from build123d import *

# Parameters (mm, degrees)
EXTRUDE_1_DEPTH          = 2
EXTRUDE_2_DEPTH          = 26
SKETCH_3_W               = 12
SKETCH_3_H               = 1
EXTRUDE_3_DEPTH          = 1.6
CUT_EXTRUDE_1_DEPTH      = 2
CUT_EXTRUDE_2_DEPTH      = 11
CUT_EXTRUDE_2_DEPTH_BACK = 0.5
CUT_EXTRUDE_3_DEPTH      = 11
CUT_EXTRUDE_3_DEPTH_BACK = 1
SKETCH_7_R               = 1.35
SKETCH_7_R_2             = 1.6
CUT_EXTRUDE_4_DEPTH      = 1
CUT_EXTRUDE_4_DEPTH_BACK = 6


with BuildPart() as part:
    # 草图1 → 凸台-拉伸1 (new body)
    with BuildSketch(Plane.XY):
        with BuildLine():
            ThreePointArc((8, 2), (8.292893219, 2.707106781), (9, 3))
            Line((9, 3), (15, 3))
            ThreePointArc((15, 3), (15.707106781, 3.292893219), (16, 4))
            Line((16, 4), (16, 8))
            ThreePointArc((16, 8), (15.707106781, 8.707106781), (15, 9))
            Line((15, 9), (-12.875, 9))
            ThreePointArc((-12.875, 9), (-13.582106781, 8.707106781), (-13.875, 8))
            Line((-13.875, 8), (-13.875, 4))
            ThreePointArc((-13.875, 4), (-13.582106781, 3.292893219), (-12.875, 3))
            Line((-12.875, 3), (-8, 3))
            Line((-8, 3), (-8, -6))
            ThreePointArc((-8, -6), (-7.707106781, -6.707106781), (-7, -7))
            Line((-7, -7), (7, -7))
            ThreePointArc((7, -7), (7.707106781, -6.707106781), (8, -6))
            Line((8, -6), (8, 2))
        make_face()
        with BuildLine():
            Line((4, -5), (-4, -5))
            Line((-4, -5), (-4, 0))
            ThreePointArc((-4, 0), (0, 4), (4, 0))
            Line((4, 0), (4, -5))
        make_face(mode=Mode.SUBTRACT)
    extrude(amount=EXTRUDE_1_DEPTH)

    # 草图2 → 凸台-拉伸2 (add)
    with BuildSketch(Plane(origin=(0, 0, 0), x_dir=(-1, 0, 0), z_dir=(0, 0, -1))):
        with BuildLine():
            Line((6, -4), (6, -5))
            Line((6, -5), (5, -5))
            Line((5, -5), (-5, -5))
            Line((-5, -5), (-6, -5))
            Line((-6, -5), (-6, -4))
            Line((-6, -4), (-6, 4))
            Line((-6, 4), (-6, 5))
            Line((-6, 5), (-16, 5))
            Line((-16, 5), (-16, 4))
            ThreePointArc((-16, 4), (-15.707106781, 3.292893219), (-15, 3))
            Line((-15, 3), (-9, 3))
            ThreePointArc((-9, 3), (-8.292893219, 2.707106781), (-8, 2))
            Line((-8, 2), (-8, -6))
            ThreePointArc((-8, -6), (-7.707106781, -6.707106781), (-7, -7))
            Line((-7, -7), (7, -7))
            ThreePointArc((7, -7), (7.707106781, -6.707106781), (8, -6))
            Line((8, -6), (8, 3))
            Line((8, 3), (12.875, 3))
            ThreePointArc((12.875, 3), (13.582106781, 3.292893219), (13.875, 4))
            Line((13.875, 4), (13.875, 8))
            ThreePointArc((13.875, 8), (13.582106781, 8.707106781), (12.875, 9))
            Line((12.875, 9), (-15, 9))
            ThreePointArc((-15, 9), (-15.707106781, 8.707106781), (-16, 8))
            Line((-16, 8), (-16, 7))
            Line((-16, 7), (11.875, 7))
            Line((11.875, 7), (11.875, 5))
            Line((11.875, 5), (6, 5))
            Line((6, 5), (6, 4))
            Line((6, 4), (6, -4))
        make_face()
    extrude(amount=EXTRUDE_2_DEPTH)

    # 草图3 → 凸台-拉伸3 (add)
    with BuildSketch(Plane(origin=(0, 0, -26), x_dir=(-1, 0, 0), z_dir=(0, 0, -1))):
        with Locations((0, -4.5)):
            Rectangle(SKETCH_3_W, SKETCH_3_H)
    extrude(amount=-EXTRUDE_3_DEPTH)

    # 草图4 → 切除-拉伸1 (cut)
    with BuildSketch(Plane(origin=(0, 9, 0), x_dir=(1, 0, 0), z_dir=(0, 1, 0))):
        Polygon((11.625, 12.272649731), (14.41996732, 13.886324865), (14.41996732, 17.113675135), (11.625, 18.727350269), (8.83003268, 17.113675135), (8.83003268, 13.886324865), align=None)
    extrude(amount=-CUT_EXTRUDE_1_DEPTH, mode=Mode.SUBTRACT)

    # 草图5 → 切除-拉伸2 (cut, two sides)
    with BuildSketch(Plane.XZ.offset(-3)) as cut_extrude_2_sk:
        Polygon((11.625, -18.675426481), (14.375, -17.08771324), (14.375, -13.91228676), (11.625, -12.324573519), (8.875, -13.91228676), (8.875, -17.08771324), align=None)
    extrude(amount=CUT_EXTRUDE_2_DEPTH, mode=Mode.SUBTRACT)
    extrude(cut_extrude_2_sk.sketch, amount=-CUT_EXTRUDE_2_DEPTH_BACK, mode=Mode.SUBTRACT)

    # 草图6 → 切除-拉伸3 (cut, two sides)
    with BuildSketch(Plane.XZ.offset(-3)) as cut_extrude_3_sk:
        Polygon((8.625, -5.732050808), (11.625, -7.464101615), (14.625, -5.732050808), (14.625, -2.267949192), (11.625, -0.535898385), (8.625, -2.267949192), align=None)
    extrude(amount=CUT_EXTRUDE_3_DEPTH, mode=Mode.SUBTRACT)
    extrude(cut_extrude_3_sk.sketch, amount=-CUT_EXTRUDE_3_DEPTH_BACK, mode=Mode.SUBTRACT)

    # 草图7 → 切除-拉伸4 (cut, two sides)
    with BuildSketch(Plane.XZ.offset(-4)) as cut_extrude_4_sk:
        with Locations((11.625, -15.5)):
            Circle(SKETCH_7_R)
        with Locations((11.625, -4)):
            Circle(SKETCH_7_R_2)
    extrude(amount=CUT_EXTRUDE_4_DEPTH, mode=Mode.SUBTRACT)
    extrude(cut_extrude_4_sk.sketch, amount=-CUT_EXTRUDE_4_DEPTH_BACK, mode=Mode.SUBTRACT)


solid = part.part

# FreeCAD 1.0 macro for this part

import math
import FreeCAD as App
import Part
import Sketcher
Q = App.Units.Quantity


def add_polygon(sketch, points):
    """Adds a closed chain of lines whose ends are joined by coincident constraints."""
    first, n = sketch.GeometryCount, len(points)
    for a, b in zip(points, points[1:] + points[:1]):
        sketch.addGeometry(Part.LineSegment(App.Vector(*a, 0), App.Vector(*b, 0)), False)
    for i in range(n):
        sketch.addConstraint(Sketcher.Constraint("Coincident", first + i, 2, first + (i + 1) % n, 1))

doc = App.newDocument("Part")
body = doc.addObject("PartDesign::Body", "Body")

sketch1 = doc.addObject("Sketcher::SketchObject", "Sketch")
body.addObject(sketch1)
sketch1.AttachmentSupport = (doc.XY_Plane, [""])
sketch1.MapMode = "FlatFace"
sketch1.addGeometry([
    Part.ArcOfCircle(Part.Circle(App.Vector(9, 2, 0), App.Vector(0, 0, 1), 1), math.radians(90), math.radians(180)),
    Part.LineSegment(App.Vector(9, 3, 0), App.Vector(15, 3, 0)),
    Part.ArcOfCircle(Part.Circle(App.Vector(15, 4, 0), App.Vector(0, 0, 1), 1), math.radians(-90), math.radians(0)),
    Part.LineSegment(App.Vector(16, 4, 0), App.Vector(16, 8, 0)),
    Part.ArcOfCircle(Part.Circle(App.Vector(15, 8, 0), App.Vector(0, 0, 1), 1), math.radians(0), math.radians(90)),
    Part.LineSegment(App.Vector(15, 9, 0), App.Vector(-12.875, 9, 0)),
    Part.ArcOfCircle(Part.Circle(App.Vector(-12.875, 8, 0), App.Vector(0, 0, 1), 1), math.radians(90), math.radians(180)),
    Part.LineSegment(App.Vector(-13.875, 8, 0), App.Vector(-13.875, 4, 0)),
    Part.ArcOfCircle(Part.Circle(App.Vector(-12.875, 4, 0), App.Vector(0, 0, 1), 1), math.radians(-180), math.radians(-90)),
    Part.LineSegment(App.Vector(-12.875, 3, 0), App.Vector(-8, 3, 0)),
    Part.LineSegment(App.Vector(-8, 3, 0), App.Vector(-8, -6, 0)),
    Part.ArcOfCircle(Part.Circle(App.Vector(-7, -6, 0), App.Vector(0, 0, 1), 1), math.radians(-180), math.radians(-90)),
    Part.LineSegment(App.Vector(-7, -7, 0), App.Vector(7, -7, 0)),
    Part.ArcOfCircle(Part.Circle(App.Vector(7, -6, 0), App.Vector(0, 0, 1), 1), math.radians(-90), math.radians(0)),
    Part.LineSegment(App.Vector(8, -6, 0), App.Vector(8, 2, 0)),
    Part.LineSegment(App.Vector(4, 0, 0), App.Vector(4, -5, 0)),
    Part.LineSegment(App.Vector(4, -5, 0), App.Vector(-4, -5, 0)),
    Part.LineSegment(App.Vector(-4, -5, 0), App.Vector(-4, 0, 0)),
    Part.ArcOfCircle(Part.Circle(App.Vector(0, 0, 0), App.Vector(0, 0, 1), 4), math.radians(0), math.radians(180)),
], False)
sketch1.addConstraint([
    Sketcher.Constraint("Tangent", 0, 1, 1, 1),
    Sketcher.Constraint("Tangent", 1, 2, 2, 1),
    Sketcher.Constraint("Tangent", 2, 2, 3, 1),
    Sketcher.Constraint("Tangent", 3, 2, 4, 1),
    Sketcher.Constraint("Tangent", 4, 2, 5, 1),
    Sketcher.Constraint("Tangent", 5, 2, 6, 1),
    Sketcher.Constraint("Tangent", 6, 2, 7, 1),
    Sketcher.Constraint("Tangent", 7, 2, 8, 1),
    Sketcher.Constraint("Tangent", 8, 2, 9, 1),
    Sketcher.Constraint("Coincident", 9, 2, 10, 1),
    Sketcher.Constraint("Tangent", 10, 2, 11, 1),
    Sketcher.Constraint("Tangent", 11, 2, 12, 1),
    Sketcher.Constraint("Tangent", 12, 2, 13, 1),
    Sketcher.Constraint("Tangent", 13, 2, 14, 1),
    Sketcher.Constraint("Tangent", 14, 2, 0, 2),
    Sketcher.Constraint("Coincident", 15, 2, 16, 1),
    Sketcher.Constraint("Coincident", 16, 2, 17, 1),
    Sketcher.Constraint("Tangent", 17, 2, 18, 2),
    Sketcher.Constraint("Tangent", 18, 1, 15, 1),
    Sketcher.Constraint("Horizontal", 1),
    Sketcher.Constraint("Vertical", 3),
    Sketcher.Constraint("Horizontal", 5),
    Sketcher.Constraint("Vertical", 7),
    Sketcher.Constraint("Horizontal", 9),
    Sketcher.Constraint("Vertical", 10),
    Sketcher.Constraint("Horizontal", 12),
    Sketcher.Constraint("Vertical", 14),
    Sketcher.Constraint("Vertical", 15),
    Sketcher.Constraint("Horizontal", 16),
    Sketcher.Constraint("Vertical", 17),
    Sketcher.Constraint("Coincident", 18, 3, -1, 1),
    Sketcher.Constraint("Equal", 0, 2),
    Sketcher.Constraint("Equal", 2, 4),
    Sketcher.Constraint("Equal", 4, 6),
    Sketcher.Constraint("Equal", 6, 8),
    Sketcher.Constraint("Equal", 8, 11),
    Sketcher.Constraint("Equal", 11, 13),
    Sketcher.Constraint("Horizontal", 2, 3, 8, 3),
    Sketcher.Constraint("Equal", 16, 14),
    Sketcher.Constraint("Radius", 0, Q("1 mm")),
    Sketcher.Constraint("Radius", 18, Q("4 mm")),
    Sketcher.Constraint("DistanceX", 1, 1, 1, 2, Q("6 mm")),
    Sketcher.Constraint("DistanceX", 12, 1, 12, 2, Q("14 mm")),
    Sketcher.Constraint("DistanceY", 3, 1, 3, 2, Q("4 mm")),
    Sketcher.Constraint("DistanceY", 15, 2, 15, 1, Q("5 mm")),
    Sketcher.Constraint("DistanceX", -1, 1, 0, 3, Q("9 mm")),
    Sketcher.Constraint("DistanceY", -1, 1, 0, 3, Q("2 mm")),
    Sketcher.Constraint("DistanceX", 5, 2, 5, 1, Q("27.875 mm")),
])
pad1 = doc.addObject("PartDesign::Pad", "Pad")
body.addObject(pad1)
pad1.Profile = sketch1
pad1.Length = 2

sketch2 = doc.addObject("Sketcher::SketchObject", "Sketch001")
body.addObject(sketch2)
sketch2.AttachmentSupport = (doc.XY_Plane, [""])
sketch2.MapMode = "FlatFace"
sketch2.addGeometry([
    Part.LineSegment(App.Vector(-6, -5, 0), App.Vector(6, -5, 0)),
    Part.LineSegment(App.Vector(6, -5, 0), App.Vector(6, 5, 0)),
    Part.LineSegment(App.Vector(6, 5, 0), App.Vector(16, 5, 0)),
    Part.LineSegment(App.Vector(16, 5, 0), App.Vector(16, 4, 0)),
    Part.ArcOfCircle(Part.Circle(App.Vector(15, 4, 0), App.Vector(0, 0, 1), 1), math.radians(-90), math.radians(0)),
    Part.LineSegment(App.Vector(15, 3, 0), App.Vector(9, 3, 0)),
    Part.ArcOfCircle(Part.Circle(App.Vector(9, 2, 0), App.Vector(0, 0, 1), 1), math.radians(90), math.radians(180)),
    Part.LineSegment(App.Vector(8, 2, 0), App.Vector(8, -6, 0)),
    Part.ArcOfCircle(Part.Circle(App.Vector(7, -6, 0), App.Vector(0, 0, 1), 1), math.radians(-90), math.radians(0)),
    Part.LineSegment(App.Vector(7, -7, 0), App.Vector(-7, -7, 0)),
    Part.ArcOfCircle(Part.Circle(App.Vector(-7, -6, 0), App.Vector(0, 0, 1), 1), math.radians(-180), math.radians(-90)),
    Part.LineSegment(App.Vector(-8, -6, 0), App.Vector(-8, 3, 0)),
    Part.LineSegment(App.Vector(-8, 3, 0), App.Vector(-12.875, 3, 0)),
    Part.ArcOfCircle(Part.Circle(App.Vector(-12.875, 4, 0), App.Vector(0, 0, 1), 1), math.radians(-180), math.radians(-90)),
    Part.LineSegment(App.Vector(-13.875, 4, 0), App.Vector(-13.875, 8, 0)),
    Part.ArcOfCircle(Part.Circle(App.Vector(-12.875, 8, 0), App.Vector(0, 0, 1), 1), math.radians(90), math.radians(180)),
    Part.LineSegment(App.Vector(-12.875, 9, 0), App.Vector(15, 9, 0)),
    Part.ArcOfCircle(Part.Circle(App.Vector(15, 8, 0), App.Vector(0, 0, 1), 1), math.radians(0), math.radians(90)),
    Part.LineSegment(App.Vector(16, 8, 0), App.Vector(16, 7, 0)),
    Part.LineSegment(App.Vector(16, 7, 0), App.Vector(-11.875, 7, 0)),
    Part.LineSegment(App.Vector(-11.875, 7, 0), App.Vector(-11.875, 5, 0)),
    Part.LineSegment(App.Vector(-11.875, 5, 0), App.Vector(-6, 5, 0)),
    Part.LineSegment(App.Vector(-6, 5, 0), App.Vector(-6, -5, 0)),
], False)
sketch2.addConstraint([
    Sketcher.Constraint("Coincident", 0, 2, 1, 1),
    Sketcher.Constraint("Coincident", 1, 2, 2, 1),
    Sketcher.Constraint("Coincident", 2, 2, 3, 1),
    Sketcher.Constraint("Tangent", 3, 2, 4, 2),
    Sketcher.Constraint("Tangent", 4, 1, 5, 1),
    Sketcher.Constraint("Tangent", 5, 2, 6, 1),
    Sketcher.Constraint("Tangent", 6, 2, 7, 1),
    Sketcher.Constraint("Tangent", 7, 2, 8, 2),
    Sketcher.Constraint("Tangent", 8, 1, 9, 1),
    Sketcher.Constraint("Tangent", 9, 2, 10, 2),
    Sketcher.Constraint("Tangent", 10, 1, 11, 1),
    Sketcher.Constraint("Coincident", 11, 2, 12, 1),
    Sketcher.Constraint("Tangent", 12, 2, 13, 2),
    Sketcher.Constraint("Tangent", 13, 1, 14, 1),
    Sketcher.Constraint("Tangent", 14, 2, 15, 2),
    Sketcher.Constraint("Tangent", 15, 1, 16, 1),
    Sketcher.Constraint("Tangent", 16, 2, 17, 2),
    Sketcher.Constraint("Tangent", 17, 1, 18, 1),
    Sketcher.Constraint("Coincident", 18, 2, 19, 1),
    Sketcher.Constraint("Coincident", 19, 2, 20, 1),
    Sketcher.Constraint("Coincident", 20, 2, 21, 1),
    Sketcher.Constraint("Coincident", 21, 2, 22, 1),
    Sketcher.Constraint("Coincident", 22, 2, 0, 1),
    Sketcher.Constraint("Horizontal", 0),
    Sketcher.Constraint("Vertical", 1),
    Sketcher.Constraint("Horizontal", 2),
    Sketcher.Constraint("Vertical", 3),
    Sketcher.Constraint("Horizontal", 5),
    Sketcher.Constraint("Vertical", 7),
    Sketcher.Constraint("Horizontal", 9),
    Sketcher.Constraint("Vertical", 11),
    Sketcher.Constraint("Horizontal", 12),
    Sketcher.Constraint("Vertical", 14),
    Sketcher.Constraint("Horizontal", 16),
    Sketcher.Constraint("Vertical", 18),
    Sketcher.Constraint("Horizontal", 19),
    Sketcher.Constraint("Vertical", 20),
    Sketcher.Constraint("Horizontal", 21),
    Sketcher.Constraint("Vertical", 22),
    Sketcher.Constraint("Equal", 4, 6),
    Sketcher.Constraint("Equal", 6, 8),
    Sketcher.Constraint("Equal", 8, 10),
    Sketcher.Constraint("Equal", 10, 13),
    Sketcher.Constraint("Equal", 13, 15),
    Sketcher.Constraint("Equal", 15, 17),
    Sketcher.Constraint("Symmetric", 0, 2, 21, 2, -1, 1),
    Sketcher.Constraint("Horizontal", 4, 3, 13, 3),
    Sketcher.Constraint("Horizontal", 2, 2, 20, 2),
    Sketcher.Constraint("Vertical", 4, 3, 17, 3),
    Sketcher.Constraint("Equal", 16, 19),
    Sketcher.Constraint("Equal", 2, 1),
    Sketcher.Constraint("Equal", 3, 18),
    Sketcher.Constraint("Radius", 4, Q("1 mm")),
    Sketcher.Constraint("DistanceX", 0, 1, 0, 2, Q("12 mm")),
    Sketcher.Constraint("DistanceX", 2, 1, 2, 2, Q("10 mm")),
    Sketcher.Constraint("DistanceX", 5, 2, 5, 1, Q("6 mm")),
    Sketcher.Constraint("DistanceX", 9, 2, 9, 1, Q("14 mm")),
    Sketcher.Constraint("DistanceY", 3, 2, 3, 1, Q("1 mm")),
    Sketcher.Constraint("DistanceY", 7, 2, 7, 1, Q("8 mm")),
    Sketcher.Constraint("DistanceY", 14, 1, 14, 2, Q("4 mm")),
    Sketcher.Constraint("DistanceX", 12, 2, 12, 1, Q("4.875 mm")),
])
pad2 = doc.addObject("PartDesign::Pad", "Pad001")
body.addObject(pad2)
pad2.Profile = sketch2
pad2.Length = 26
pad2.Reversed = True

sketch3 = doc.addObject("Sketcher::SketchObject", "Sketch002")
body.addObject(sketch3)
sketch3.AttachmentSupport = (doc.XY_Plane, [""])
sketch3.MapMode = "FlatFace"
sketch3.AttachmentOffset = App.Placement(App.Vector(0, 0, -26), App.Rotation())
add_polygon(sketch3, [(6, -4), (6, -5), (-6, -5), (-6, -4)])
sketch3.addConstraint([
    Sketcher.Constraint("Vertical", 0),
    Sketcher.Constraint("Horizontal", 1),
    Sketcher.Constraint("Vertical", 2),
    Sketcher.Constraint("Horizontal", 3),
    Sketcher.Constraint("DistanceX", 1, 2, 1, 1, Q("12 mm")),
    Sketcher.Constraint("DistanceY", 0, 2, 0, 1, Q("1 mm")),
    Sketcher.Constraint("DistanceX", -1, 1, 0, 2, Q("6 mm")),
    Sketcher.Constraint("DistanceY", 0, 2, -1, 1, Q("5 mm")),
])
pad3 = doc.addObject("PartDesign::Pad", "Pad002")
body.addObject(pad3)
pad3.Profile = sketch3
pad3.Length = 1.6

sketch4 = doc.addObject("Sketcher::SketchObject", "Sketch003")
body.addObject(sketch4)
sketch4.AttachmentSupport = (doc.XZ_Plane, [""])
sketch4.MapMode = "FlatFace"
sketch4.AttachmentOffset = App.Placement(App.Vector(0, 0, -9), App.Rotation())
add_polygon(sketch4, [(11.625, -12.27265), (14.419967, -13.886325), (14.419967, -17.113675), (11.625, -18.72735), (8.830033, -17.113675), (8.830033, -13.886325)])
sketch4.addConstraint([
    Sketcher.Constraint("Vertical", 1),
    Sketcher.Constraint("Vertical", 4),
    Sketcher.Constraint("Parallel", 0, 3),
    Sketcher.Constraint("Parallel", 2, 5),
    Sketcher.Constraint("Horizontal", 1, 2, 3, 2),
    Sketcher.Constraint("Horizontal", 0, 2, 4, 2),
    Sketcher.Constraint("Vertical", 2, 2, 5, 2),
    Sketcher.Constraint("Angle", 0, Q("-30 deg")),
    Sketcher.Constraint("DistanceX", -1, 1, 2, 2, Q("11.625 mm")),
    Sketcher.Constraint("DistanceY", 1, 2, 1, 1, Q("3.22735 mm")),
    Sketcher.Constraint("DistanceY", 2, 2, 5, 2, Q("6.454701 mm")),
    Sketcher.Constraint("DistanceY", 2, 2, -1, 1, Q("18.72735 mm")),
])
pocket1 = doc.addObject("PartDesign::Pocket", "Pocket")
body.addObject(pocket1)
pocket1.Profile = sketch4
pocket1.Length = 2
pocket1.Reversed = True

sketch5 = doc.addObject("Sketcher::SketchObject", "Sketch004")
body.addObject(sketch5)
sketch5.AttachmentSupport = (doc.XZ_Plane, [""])
sketch5.MapMode = "FlatFace"
sketch5.AttachmentOffset = App.Placement(App.Vector(0, 0, -3), App.Rotation())
add_polygon(sketch5, [(11.625, -18.675426), (14.375, -17.087713), (14.375, -13.912287), (11.625, -12.324574), (8.875, -13.912287), (8.875, -17.087713)])
sketch5.addConstraint([
    Sketcher.Constraint("Vertical", 1),
    Sketcher.Constraint("Vertical", 4),
    Sketcher.Constraint("Parallel", 0, 3),
    Sketcher.Constraint("Parallel", 2, 5),
    Sketcher.Constraint("Horizontal", 1, 2, 3, 2),
    Sketcher.Constraint("Horizontal", 0, 2, 4, 2),
    Sketcher.Constraint("Vertical", 2, 2, 5, 2),
    Sketcher.Constraint("Angle", 0, Q("30 deg")),
    Sketcher.Constraint("DistanceX", 3, 2, 1, 2, Q("5.5 mm")),
    Sketcher.Constraint("DistanceX", -1, 1, 0, 2, Q("14.375 mm")),
    Sketcher.Constraint("DistanceY", 1, 1, 1, 2, Q("3.175426 mm")),
    Sketcher.Constraint("DistanceY", 0, 2, -1, 1, Q("17.087713 mm")),
])
pocket2 = doc.addObject("PartDesign::Pocket", "Pocket001")
body.addObject(pocket2)
pocket2.Profile = sketch5
pocket2.Type = "TwoLengths"
pocket2.Length = 11
pocket2.Length2 = 0.5
pocket2.Reversed = True

sketch6 = doc.addObject("Sketcher::SketchObject", "Sketch005")
body.addObject(sketch6)
sketch6.AttachmentSupport = (doc.XZ_Plane, [""])
sketch6.MapMode = "FlatFace"
sketch6.AttachmentOffset = App.Placement(App.Vector(0, 0, -3), App.Rotation())
add_polygon(sketch6, [(8.625, -5.732051), (11.625, -7.464102), (14.625, -5.732051), (14.625, -2.267949), (11.625, -0.535898), (8.625, -2.267949)])
sketch6.addConstraint([
    Sketcher.Constraint("Vertical", 2),
    Sketcher.Constraint("Vertical", 5),
    Sketcher.Constraint("Parallel", 0, 3),
    Sketcher.Constraint("Parallel", 1, 4),
    Sketcher.Constraint("Horizontal", 2, 2, 4, 2),
    Sketcher.Constraint("Horizontal", 1, 2, 5, 2),
    Sketcher.Constraint("Vertical", 0, 2, 3, 2),
    Sketcher.Constraint("Angle", 0, Q("-30 deg")),
    Sketcher.Constraint("DistanceX", 0, 2, 1, 2, Q("3 mm")),
    Sketcher.Constraint("DistanceY", 2, 1, 2, 2, Q("3.464102 mm")),
    Sketcher.Constraint("DistanceX", -1, 1, 0, 2, Q("11.625 mm")),
    Sketcher.Constraint("DistanceY", 0, 2, -1, 1, Q("7.464102 mm")),
])
pocket3 = doc.addObject("PartDesign::Pocket", "Pocket002")
body.addObject(pocket3)
pocket3.Profile = sketch6
pocket3.Type = "TwoLengths"
pocket3.Length = 11
pocket3.Length2 = 1
pocket3.Reversed = True

sketch7 = doc.addObject("Sketcher::SketchObject", "Sketch006")
body.addObject(sketch7)
sketch7.AttachmentSupport = (doc.XZ_Plane, [""])
sketch7.MapMode = "FlatFace"
sketch7.AttachmentOffset = App.Placement(App.Vector(0, 0, -4), App.Rotation())
sketch7.addGeometry([
    Part.Circle(App.Vector(11.625, -15.5, 0), App.Vector(0, 0, 1), 1.35),
    Part.Circle(App.Vector(11.625, -4, 0), App.Vector(0, 0, 1), 1.6),
], False)
sketch7.addConstraint([
    Sketcher.Constraint("Vertical", 0, 3, 1, 3),
    Sketcher.Constraint("Diameter", 0, Q("2.7 mm")),
    Sketcher.Constraint("Diameter", 1, Q("3.2 mm")),
    Sketcher.Constraint("DistanceY", 1, 3, -1, 1, Q("4 mm")),
    Sketcher.Constraint("DistanceY", 0, 3, -1, 1, Q("15.5 mm")),
    Sketcher.Constraint("DistanceX", -1, 1, 0, 3, Q("11.625 mm")),
])
pocket4 = doc.addObject("PartDesign::Pocket", "Pocket003")
body.addObject(pocket4)
pocket4.Profile = sketch7
pocket4.Type = "ThroughAll"
pocket4.Midplane = True

doc.recompute()
